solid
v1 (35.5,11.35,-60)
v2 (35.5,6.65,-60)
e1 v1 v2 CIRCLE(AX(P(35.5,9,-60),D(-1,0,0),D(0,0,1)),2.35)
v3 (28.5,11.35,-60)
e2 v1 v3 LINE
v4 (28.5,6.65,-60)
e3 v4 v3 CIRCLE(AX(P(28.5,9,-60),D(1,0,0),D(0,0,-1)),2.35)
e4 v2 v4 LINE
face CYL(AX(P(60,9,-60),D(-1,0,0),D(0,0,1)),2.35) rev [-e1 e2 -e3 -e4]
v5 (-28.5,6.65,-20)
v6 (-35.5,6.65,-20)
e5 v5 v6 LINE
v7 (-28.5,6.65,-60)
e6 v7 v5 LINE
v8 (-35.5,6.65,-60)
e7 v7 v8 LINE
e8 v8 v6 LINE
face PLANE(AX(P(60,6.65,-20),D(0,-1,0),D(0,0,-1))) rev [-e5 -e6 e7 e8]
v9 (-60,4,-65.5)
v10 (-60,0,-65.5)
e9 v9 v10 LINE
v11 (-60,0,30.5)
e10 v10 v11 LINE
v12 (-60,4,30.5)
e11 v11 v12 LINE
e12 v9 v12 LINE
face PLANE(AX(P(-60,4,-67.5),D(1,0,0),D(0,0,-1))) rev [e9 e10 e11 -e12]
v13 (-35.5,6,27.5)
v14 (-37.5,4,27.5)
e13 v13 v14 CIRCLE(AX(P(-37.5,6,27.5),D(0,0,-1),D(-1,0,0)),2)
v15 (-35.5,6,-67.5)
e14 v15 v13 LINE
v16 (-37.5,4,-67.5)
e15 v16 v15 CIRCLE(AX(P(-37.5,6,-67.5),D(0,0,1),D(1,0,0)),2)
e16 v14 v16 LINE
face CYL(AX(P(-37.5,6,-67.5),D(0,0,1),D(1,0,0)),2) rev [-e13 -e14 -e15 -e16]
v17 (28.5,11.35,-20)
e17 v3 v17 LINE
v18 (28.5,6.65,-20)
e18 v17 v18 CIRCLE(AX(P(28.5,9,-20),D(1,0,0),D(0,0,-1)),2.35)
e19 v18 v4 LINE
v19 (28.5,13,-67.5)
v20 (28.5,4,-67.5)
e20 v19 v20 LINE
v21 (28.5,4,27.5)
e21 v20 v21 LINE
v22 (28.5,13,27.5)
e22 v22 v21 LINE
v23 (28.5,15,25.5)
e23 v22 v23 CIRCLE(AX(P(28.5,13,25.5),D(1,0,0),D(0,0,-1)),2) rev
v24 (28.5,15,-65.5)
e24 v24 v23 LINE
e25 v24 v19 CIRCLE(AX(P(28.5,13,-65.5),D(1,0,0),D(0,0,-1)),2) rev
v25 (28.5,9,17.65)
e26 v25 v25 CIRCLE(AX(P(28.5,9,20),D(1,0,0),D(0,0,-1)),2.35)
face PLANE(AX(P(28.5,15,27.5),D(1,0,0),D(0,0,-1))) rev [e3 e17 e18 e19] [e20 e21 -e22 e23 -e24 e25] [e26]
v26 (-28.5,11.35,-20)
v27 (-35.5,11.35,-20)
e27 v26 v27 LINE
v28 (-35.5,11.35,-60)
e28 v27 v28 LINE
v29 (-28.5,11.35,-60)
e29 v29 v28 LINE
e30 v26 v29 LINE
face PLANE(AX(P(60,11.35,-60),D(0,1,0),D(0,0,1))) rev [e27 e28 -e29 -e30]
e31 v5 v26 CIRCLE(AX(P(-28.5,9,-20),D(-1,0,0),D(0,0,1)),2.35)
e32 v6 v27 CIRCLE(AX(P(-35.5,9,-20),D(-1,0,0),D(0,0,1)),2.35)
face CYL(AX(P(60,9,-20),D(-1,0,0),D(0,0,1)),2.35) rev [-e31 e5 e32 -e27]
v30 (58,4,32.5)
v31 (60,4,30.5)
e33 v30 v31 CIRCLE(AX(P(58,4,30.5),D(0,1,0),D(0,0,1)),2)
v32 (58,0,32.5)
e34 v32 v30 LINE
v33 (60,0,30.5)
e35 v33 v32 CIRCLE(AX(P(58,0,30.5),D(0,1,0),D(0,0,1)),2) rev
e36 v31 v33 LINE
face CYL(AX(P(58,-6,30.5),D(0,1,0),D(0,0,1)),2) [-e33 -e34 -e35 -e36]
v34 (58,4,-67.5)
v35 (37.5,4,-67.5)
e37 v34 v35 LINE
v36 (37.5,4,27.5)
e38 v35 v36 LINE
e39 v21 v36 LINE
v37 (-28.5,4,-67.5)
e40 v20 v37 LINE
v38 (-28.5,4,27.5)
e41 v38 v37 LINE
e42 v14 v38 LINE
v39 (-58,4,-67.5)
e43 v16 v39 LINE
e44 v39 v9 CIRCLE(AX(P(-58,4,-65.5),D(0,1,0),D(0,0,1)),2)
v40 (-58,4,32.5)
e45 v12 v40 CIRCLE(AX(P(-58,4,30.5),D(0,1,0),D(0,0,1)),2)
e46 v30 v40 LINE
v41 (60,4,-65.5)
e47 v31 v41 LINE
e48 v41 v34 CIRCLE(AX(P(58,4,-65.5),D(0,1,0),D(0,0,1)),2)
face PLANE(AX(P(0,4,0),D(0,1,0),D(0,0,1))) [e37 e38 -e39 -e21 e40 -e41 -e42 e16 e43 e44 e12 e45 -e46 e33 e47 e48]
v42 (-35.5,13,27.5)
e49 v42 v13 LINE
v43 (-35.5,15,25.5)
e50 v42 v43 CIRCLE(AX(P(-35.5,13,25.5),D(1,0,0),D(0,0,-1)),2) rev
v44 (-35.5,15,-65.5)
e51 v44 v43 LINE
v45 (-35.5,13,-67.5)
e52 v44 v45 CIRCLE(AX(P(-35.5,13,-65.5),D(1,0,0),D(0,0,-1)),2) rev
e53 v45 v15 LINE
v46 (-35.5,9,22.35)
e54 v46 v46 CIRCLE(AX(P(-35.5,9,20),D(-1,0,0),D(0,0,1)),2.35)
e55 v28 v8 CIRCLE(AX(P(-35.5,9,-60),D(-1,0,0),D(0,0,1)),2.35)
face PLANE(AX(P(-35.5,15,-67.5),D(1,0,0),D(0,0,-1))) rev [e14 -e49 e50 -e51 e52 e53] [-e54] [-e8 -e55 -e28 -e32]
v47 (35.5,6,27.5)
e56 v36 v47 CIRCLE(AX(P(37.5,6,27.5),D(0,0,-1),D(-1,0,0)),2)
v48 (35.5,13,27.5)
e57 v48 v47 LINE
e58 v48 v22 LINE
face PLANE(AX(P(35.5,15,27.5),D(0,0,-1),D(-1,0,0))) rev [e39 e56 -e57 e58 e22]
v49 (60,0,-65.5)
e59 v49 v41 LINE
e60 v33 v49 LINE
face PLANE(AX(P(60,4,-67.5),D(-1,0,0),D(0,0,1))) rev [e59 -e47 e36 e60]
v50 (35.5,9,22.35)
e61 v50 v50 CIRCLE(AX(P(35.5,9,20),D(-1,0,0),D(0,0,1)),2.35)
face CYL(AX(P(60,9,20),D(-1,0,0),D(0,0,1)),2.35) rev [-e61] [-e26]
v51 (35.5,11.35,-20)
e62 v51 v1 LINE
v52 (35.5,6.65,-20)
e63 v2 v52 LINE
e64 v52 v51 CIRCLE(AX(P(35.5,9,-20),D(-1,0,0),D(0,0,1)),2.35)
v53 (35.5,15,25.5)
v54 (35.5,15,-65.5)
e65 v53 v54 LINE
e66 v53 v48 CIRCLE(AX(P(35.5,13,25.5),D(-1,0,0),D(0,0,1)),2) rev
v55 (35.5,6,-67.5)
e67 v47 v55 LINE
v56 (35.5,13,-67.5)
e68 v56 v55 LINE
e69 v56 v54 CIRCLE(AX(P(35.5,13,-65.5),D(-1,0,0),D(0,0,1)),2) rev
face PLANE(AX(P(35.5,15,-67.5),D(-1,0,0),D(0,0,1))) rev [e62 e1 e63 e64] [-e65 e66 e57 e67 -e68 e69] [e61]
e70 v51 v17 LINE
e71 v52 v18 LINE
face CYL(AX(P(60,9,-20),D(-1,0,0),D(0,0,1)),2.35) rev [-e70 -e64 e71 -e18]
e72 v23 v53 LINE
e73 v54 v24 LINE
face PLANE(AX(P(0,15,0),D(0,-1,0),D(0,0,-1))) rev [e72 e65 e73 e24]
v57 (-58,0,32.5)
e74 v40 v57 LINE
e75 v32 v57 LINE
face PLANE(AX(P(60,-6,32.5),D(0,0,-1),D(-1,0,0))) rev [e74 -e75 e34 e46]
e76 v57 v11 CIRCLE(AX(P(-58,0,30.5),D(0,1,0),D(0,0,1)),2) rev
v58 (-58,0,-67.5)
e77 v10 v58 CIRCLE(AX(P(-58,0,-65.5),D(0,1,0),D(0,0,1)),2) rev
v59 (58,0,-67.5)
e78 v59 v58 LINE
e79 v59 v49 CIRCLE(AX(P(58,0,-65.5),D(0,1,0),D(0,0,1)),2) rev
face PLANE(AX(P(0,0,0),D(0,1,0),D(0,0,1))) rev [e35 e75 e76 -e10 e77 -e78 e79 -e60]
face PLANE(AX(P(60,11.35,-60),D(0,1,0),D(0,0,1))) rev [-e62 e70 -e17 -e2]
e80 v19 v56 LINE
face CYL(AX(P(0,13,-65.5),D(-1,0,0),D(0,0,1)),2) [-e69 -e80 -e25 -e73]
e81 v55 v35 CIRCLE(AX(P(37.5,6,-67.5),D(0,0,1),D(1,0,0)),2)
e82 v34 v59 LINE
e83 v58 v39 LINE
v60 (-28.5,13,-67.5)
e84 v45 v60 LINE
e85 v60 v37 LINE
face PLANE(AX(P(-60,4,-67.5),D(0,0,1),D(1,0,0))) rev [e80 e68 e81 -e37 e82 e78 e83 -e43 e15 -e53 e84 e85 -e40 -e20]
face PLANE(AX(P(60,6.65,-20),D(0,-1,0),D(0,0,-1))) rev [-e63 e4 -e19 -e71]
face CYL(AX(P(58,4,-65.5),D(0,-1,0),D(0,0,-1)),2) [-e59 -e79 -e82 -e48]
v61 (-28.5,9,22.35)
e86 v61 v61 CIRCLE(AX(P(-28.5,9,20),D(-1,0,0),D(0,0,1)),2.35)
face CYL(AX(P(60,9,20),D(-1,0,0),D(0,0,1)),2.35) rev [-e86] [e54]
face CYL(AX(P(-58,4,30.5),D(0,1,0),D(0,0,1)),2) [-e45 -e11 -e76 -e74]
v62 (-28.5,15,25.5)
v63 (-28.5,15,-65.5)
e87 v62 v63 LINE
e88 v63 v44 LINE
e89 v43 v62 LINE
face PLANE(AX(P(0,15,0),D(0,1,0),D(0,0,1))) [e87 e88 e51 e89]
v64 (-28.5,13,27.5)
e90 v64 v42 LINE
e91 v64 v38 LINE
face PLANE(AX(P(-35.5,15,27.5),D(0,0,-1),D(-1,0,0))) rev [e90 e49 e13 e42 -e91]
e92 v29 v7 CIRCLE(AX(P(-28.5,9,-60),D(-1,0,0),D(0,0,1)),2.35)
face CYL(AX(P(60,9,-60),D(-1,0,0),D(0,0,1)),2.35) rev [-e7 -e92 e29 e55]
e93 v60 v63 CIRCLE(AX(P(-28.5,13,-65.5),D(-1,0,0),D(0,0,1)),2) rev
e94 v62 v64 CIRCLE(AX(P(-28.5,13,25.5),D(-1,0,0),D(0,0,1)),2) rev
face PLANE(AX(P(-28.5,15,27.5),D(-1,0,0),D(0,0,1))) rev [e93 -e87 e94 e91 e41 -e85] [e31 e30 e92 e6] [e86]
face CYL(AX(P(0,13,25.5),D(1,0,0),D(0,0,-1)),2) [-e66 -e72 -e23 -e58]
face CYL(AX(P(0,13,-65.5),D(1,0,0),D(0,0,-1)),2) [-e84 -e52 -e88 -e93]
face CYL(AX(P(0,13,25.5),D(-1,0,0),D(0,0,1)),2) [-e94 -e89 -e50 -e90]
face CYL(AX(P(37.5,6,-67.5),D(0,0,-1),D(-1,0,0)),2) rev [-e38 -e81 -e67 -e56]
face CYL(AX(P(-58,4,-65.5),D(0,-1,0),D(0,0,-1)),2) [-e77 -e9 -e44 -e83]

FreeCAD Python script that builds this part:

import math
import FreeCAD as App
import Part
import Sketcher

V = App.Vector


def edges_at(feature, points):
    """Names of the edges that pass closest to the given points."""
    edges = feature.Shape.Edges
    near = lambda p: min(range(len(edges)), key=lambda i: edges[i].distToShape(Part.Vertex(*p))[0])
    return sorted({f"Edge{near(p) + 1}" for p in points})


def add_polygon(sketch, points):
    """Adds a closed chain of lines whose ends are joined by coincident constraints."""
    first, n = sketch.GeometryCount, len(points)
    for a, b in zip(points, points[1:] + points[:1]):
        sketch.addGeometry(Part.LineSegment(App.Vector(*a, 0), App.Vector(*b, 0)), False)
    for i in range(n):
        sketch.addConstraint(Sketcher.Constraint("Coincident", first + i, 2, first + (i + 1) % n, 1))

doc = App.newDocument("Part")
body = doc.addObject("PartDesign::Body", "Body")

# Sketch on XZ plane
sketch1 = body.newObject("Sketcher::SketchObject", "Sketch")
sketch1.AttachmentSupport = (doc.getObject("XZ_Plane"), [""])
sketch1.MapMode = "FlatFace"
add_polygon(sketch1, [(-60, -67.5), (-60, 67.5), (60, 67.5), (60, -67.5)])  # lines 0-3
sketch1.addConstraint([
    Sketcher.Constraint("Vertical", 0),
    Sketcher.Constraint("Horizontal", 1),
    Sketcher.Constraint("Vertical", 2),
    Sketcher.Constraint("Horizontal", 3),
    Sketcher.Constraint("Symmetric", 0, 2, 2, 2, -1, 1),
    Sketcher.Constraint("DistanceX", 1, 1, 1, 2, 120.0),
    Sketcher.Constraint("DistanceY", 0, 1, 0, 2, 135.0),
])
pad1 = body.newObject("PartDesign::Pad", "Pad")
pad1.Profile = sketch1
pad1.Length = 4
pad1.Reversed = True

# Sketch on XZ plane
sketch2 = body.newObject("Sketcher::SketchObject", "Sketch001")
sketch2.AttachmentSupport = (doc.getObject("XZ_Plane"), [""])
sketch2.MapMode = "FlatFace"
sketch2.AttachmentOffset = App.Placement(V(0, 0, -4), App.Rotation())
add_polygon(sketch2, [(-35.5, -67.5), (-35.5, 27.5), (-28.5, 27.5), (-28.5, -67.5)])  # lines 0-3
add_polygon(sketch2, [(28.5, -67.5), (28.5, 27.5), (35.5, 27.5), (35.5, -67.5)])  # lines 4-7
sketch2.addConstraint([
    Sketcher.Constraint("Vertical", 0),
    Sketcher.Constraint("Horizontal", 1),
    Sketcher.Constraint("Vertical", 2),
    Sketcher.Constraint("Horizontal", 3),
    Sketcher.Constraint("Vertical", 4),
    Sketcher.Constraint("Horizontal", 5),
    Sketcher.Constraint("Vertical", 6),
    Sketcher.Constraint("Horizontal", 7),
    Sketcher.Constraint("Symmetric", 1, 2, 4, 2, -2),
    Sketcher.Constraint("Symmetric", 3, 2, 6, 2, -2),
    Sketcher.Constraint("DistanceX", 1, 1, 1, 2, 7.0),
    Sketcher.Constraint("DistanceY", 0, 1, 0, 2, 95.0),
    Sketcher.Constraint("DistanceX", 1, 2, 4, 2, 57.0),
    Sketcher.Constraint("DistanceY", -1, 1, 0, 2, 27.5),
])
pad2 = body.newObject("PartDesign::Pad", "Pad001")
pad2.Profile = sketch2
pad2.Length = 11
pad2.Reversed = True

# Sketch on YZ plane
sketch3 = body.newObject("Sketcher::SketchObject", "Sketch002")
sketch3.AttachmentSupport = (doc.getObject("YZ_Plane"), [""])
sketch3.MapMode = "FlatFace"
sketch3.AttachmentOffset = App.Placement(V(0, 0, -35.5), App.Rotation())
sketch3.addGeometry([
    Part.Circle(V(9, 20, 0), V(0, 0, 1), 2.35),  # 0
    Part.LineSegment(V(11.35, -20, 0), V(11.35, -60, 0)),  # 1
    Part.ArcOfCircle(Part.Circle(V(9, -60, 0), V(0, 0, 1), 2.35), math.radians(180), math.radians(360)),  # 2
    Part.LineSegment(V(6.65, -60, 0), V(6.65, -20, 0)),  # 3
    Part.ArcOfCircle(Part.Circle(V(9, -20, 0), V(0, 0, 1), 2.35), math.radians(0), math.radians(180)),  # 4
], False)
sketch3.addConstraint([
    Sketcher.Constraint("Tangent", 1, 2, 2, 2),
    Sketcher.Constraint("Tangent", 2, 1, 3, 1),
    Sketcher.Constraint("Tangent", 3, 2, 4, 2),
    Sketcher.Constraint("Tangent", 4, 1, 1, 1),
    Sketcher.Constraint("Vertical", 1),
    Sketcher.Constraint("Vertical", 3),
    Sketcher.Constraint("Equal", 0, 2),
    Sketcher.Constraint("Symmetric", 0, 3, 4, 3, -1),
    Sketcher.Constraint("Diameter", 0, 4.7),
    Sketcher.Constraint("DistanceY", 1, 2, 1, 1, 40.0),
    Sketcher.Constraint("DistanceX", -1, 1, 0, 3, 9.0),
    Sketcher.Constraint("DistanceY", -1, 1, 0, 3, 20.0),
])
pocket1 = body.newObject("PartDesign::Pocket", "Pocket")
pocket1.Profile = sketch3
pocket1.Type = "ThroughAll"
pocket1.Reversed = True

# Sketch on XZ plane
sketch4 = body.newObject("Sketcher::SketchObject", "Sketch003")
sketch4.AttachmentSupport = (doc.getObject("XZ_Plane"), [""])
sketch4.MapMode = "FlatFace"
sketch4.AttachmentOffset = App.Placement(V(0, 0, -4), App.Rotation())
add_polygon(sketch4, [(-60, 32.5), (-60, 67.5), (60, 67.5), (60, 32.5)])  # lines 0-3
sketch4.addConstraint([
    Sketcher.Constraint("Vertical", 0),
    Sketcher.Constraint("Horizontal", 1),
    Sketcher.Constraint("Vertical", 2),
    Sketcher.Constraint("Horizontal", 3),
    Sketcher.Constraint("DistanceX", 1, 1, 1, 2, 120.0),
    Sketcher.Constraint("DistanceY", 0, 1, 0, 2, 35.0),
    Sketcher.Constraint("DistanceX", 0, 2, -1, 1, 60.0),
    Sketcher.Constraint("DistanceY", -1, 1, 0, 2, 67.5),
])
pocket2 = body.newObject("PartDesign::Pocket", "Pocket001")
pocket2.Profile = sketch4
pocket2.Length = 10
pocket2.Reversed = True
doc.recompute()

fillet = body.newObject("PartDesign::Fillet", "Fillet")
fillet.Base = (pocket2, edges_at(pocket2, [
    (-35.5, 4, -20),
    (-32, 15, -67.5),
    (-32, 15, 27.5),
    (35.5, 4, -20),
    (32, 15, -67.5),
    (32, 15, 27.5),
    (-60, 2, -67.5),
    (60, 2, -67.5),
    (60, 2, 32.5),
    (-60, 2, 32.5),
]))
fillet.Radius = 2

doc.recompute()
